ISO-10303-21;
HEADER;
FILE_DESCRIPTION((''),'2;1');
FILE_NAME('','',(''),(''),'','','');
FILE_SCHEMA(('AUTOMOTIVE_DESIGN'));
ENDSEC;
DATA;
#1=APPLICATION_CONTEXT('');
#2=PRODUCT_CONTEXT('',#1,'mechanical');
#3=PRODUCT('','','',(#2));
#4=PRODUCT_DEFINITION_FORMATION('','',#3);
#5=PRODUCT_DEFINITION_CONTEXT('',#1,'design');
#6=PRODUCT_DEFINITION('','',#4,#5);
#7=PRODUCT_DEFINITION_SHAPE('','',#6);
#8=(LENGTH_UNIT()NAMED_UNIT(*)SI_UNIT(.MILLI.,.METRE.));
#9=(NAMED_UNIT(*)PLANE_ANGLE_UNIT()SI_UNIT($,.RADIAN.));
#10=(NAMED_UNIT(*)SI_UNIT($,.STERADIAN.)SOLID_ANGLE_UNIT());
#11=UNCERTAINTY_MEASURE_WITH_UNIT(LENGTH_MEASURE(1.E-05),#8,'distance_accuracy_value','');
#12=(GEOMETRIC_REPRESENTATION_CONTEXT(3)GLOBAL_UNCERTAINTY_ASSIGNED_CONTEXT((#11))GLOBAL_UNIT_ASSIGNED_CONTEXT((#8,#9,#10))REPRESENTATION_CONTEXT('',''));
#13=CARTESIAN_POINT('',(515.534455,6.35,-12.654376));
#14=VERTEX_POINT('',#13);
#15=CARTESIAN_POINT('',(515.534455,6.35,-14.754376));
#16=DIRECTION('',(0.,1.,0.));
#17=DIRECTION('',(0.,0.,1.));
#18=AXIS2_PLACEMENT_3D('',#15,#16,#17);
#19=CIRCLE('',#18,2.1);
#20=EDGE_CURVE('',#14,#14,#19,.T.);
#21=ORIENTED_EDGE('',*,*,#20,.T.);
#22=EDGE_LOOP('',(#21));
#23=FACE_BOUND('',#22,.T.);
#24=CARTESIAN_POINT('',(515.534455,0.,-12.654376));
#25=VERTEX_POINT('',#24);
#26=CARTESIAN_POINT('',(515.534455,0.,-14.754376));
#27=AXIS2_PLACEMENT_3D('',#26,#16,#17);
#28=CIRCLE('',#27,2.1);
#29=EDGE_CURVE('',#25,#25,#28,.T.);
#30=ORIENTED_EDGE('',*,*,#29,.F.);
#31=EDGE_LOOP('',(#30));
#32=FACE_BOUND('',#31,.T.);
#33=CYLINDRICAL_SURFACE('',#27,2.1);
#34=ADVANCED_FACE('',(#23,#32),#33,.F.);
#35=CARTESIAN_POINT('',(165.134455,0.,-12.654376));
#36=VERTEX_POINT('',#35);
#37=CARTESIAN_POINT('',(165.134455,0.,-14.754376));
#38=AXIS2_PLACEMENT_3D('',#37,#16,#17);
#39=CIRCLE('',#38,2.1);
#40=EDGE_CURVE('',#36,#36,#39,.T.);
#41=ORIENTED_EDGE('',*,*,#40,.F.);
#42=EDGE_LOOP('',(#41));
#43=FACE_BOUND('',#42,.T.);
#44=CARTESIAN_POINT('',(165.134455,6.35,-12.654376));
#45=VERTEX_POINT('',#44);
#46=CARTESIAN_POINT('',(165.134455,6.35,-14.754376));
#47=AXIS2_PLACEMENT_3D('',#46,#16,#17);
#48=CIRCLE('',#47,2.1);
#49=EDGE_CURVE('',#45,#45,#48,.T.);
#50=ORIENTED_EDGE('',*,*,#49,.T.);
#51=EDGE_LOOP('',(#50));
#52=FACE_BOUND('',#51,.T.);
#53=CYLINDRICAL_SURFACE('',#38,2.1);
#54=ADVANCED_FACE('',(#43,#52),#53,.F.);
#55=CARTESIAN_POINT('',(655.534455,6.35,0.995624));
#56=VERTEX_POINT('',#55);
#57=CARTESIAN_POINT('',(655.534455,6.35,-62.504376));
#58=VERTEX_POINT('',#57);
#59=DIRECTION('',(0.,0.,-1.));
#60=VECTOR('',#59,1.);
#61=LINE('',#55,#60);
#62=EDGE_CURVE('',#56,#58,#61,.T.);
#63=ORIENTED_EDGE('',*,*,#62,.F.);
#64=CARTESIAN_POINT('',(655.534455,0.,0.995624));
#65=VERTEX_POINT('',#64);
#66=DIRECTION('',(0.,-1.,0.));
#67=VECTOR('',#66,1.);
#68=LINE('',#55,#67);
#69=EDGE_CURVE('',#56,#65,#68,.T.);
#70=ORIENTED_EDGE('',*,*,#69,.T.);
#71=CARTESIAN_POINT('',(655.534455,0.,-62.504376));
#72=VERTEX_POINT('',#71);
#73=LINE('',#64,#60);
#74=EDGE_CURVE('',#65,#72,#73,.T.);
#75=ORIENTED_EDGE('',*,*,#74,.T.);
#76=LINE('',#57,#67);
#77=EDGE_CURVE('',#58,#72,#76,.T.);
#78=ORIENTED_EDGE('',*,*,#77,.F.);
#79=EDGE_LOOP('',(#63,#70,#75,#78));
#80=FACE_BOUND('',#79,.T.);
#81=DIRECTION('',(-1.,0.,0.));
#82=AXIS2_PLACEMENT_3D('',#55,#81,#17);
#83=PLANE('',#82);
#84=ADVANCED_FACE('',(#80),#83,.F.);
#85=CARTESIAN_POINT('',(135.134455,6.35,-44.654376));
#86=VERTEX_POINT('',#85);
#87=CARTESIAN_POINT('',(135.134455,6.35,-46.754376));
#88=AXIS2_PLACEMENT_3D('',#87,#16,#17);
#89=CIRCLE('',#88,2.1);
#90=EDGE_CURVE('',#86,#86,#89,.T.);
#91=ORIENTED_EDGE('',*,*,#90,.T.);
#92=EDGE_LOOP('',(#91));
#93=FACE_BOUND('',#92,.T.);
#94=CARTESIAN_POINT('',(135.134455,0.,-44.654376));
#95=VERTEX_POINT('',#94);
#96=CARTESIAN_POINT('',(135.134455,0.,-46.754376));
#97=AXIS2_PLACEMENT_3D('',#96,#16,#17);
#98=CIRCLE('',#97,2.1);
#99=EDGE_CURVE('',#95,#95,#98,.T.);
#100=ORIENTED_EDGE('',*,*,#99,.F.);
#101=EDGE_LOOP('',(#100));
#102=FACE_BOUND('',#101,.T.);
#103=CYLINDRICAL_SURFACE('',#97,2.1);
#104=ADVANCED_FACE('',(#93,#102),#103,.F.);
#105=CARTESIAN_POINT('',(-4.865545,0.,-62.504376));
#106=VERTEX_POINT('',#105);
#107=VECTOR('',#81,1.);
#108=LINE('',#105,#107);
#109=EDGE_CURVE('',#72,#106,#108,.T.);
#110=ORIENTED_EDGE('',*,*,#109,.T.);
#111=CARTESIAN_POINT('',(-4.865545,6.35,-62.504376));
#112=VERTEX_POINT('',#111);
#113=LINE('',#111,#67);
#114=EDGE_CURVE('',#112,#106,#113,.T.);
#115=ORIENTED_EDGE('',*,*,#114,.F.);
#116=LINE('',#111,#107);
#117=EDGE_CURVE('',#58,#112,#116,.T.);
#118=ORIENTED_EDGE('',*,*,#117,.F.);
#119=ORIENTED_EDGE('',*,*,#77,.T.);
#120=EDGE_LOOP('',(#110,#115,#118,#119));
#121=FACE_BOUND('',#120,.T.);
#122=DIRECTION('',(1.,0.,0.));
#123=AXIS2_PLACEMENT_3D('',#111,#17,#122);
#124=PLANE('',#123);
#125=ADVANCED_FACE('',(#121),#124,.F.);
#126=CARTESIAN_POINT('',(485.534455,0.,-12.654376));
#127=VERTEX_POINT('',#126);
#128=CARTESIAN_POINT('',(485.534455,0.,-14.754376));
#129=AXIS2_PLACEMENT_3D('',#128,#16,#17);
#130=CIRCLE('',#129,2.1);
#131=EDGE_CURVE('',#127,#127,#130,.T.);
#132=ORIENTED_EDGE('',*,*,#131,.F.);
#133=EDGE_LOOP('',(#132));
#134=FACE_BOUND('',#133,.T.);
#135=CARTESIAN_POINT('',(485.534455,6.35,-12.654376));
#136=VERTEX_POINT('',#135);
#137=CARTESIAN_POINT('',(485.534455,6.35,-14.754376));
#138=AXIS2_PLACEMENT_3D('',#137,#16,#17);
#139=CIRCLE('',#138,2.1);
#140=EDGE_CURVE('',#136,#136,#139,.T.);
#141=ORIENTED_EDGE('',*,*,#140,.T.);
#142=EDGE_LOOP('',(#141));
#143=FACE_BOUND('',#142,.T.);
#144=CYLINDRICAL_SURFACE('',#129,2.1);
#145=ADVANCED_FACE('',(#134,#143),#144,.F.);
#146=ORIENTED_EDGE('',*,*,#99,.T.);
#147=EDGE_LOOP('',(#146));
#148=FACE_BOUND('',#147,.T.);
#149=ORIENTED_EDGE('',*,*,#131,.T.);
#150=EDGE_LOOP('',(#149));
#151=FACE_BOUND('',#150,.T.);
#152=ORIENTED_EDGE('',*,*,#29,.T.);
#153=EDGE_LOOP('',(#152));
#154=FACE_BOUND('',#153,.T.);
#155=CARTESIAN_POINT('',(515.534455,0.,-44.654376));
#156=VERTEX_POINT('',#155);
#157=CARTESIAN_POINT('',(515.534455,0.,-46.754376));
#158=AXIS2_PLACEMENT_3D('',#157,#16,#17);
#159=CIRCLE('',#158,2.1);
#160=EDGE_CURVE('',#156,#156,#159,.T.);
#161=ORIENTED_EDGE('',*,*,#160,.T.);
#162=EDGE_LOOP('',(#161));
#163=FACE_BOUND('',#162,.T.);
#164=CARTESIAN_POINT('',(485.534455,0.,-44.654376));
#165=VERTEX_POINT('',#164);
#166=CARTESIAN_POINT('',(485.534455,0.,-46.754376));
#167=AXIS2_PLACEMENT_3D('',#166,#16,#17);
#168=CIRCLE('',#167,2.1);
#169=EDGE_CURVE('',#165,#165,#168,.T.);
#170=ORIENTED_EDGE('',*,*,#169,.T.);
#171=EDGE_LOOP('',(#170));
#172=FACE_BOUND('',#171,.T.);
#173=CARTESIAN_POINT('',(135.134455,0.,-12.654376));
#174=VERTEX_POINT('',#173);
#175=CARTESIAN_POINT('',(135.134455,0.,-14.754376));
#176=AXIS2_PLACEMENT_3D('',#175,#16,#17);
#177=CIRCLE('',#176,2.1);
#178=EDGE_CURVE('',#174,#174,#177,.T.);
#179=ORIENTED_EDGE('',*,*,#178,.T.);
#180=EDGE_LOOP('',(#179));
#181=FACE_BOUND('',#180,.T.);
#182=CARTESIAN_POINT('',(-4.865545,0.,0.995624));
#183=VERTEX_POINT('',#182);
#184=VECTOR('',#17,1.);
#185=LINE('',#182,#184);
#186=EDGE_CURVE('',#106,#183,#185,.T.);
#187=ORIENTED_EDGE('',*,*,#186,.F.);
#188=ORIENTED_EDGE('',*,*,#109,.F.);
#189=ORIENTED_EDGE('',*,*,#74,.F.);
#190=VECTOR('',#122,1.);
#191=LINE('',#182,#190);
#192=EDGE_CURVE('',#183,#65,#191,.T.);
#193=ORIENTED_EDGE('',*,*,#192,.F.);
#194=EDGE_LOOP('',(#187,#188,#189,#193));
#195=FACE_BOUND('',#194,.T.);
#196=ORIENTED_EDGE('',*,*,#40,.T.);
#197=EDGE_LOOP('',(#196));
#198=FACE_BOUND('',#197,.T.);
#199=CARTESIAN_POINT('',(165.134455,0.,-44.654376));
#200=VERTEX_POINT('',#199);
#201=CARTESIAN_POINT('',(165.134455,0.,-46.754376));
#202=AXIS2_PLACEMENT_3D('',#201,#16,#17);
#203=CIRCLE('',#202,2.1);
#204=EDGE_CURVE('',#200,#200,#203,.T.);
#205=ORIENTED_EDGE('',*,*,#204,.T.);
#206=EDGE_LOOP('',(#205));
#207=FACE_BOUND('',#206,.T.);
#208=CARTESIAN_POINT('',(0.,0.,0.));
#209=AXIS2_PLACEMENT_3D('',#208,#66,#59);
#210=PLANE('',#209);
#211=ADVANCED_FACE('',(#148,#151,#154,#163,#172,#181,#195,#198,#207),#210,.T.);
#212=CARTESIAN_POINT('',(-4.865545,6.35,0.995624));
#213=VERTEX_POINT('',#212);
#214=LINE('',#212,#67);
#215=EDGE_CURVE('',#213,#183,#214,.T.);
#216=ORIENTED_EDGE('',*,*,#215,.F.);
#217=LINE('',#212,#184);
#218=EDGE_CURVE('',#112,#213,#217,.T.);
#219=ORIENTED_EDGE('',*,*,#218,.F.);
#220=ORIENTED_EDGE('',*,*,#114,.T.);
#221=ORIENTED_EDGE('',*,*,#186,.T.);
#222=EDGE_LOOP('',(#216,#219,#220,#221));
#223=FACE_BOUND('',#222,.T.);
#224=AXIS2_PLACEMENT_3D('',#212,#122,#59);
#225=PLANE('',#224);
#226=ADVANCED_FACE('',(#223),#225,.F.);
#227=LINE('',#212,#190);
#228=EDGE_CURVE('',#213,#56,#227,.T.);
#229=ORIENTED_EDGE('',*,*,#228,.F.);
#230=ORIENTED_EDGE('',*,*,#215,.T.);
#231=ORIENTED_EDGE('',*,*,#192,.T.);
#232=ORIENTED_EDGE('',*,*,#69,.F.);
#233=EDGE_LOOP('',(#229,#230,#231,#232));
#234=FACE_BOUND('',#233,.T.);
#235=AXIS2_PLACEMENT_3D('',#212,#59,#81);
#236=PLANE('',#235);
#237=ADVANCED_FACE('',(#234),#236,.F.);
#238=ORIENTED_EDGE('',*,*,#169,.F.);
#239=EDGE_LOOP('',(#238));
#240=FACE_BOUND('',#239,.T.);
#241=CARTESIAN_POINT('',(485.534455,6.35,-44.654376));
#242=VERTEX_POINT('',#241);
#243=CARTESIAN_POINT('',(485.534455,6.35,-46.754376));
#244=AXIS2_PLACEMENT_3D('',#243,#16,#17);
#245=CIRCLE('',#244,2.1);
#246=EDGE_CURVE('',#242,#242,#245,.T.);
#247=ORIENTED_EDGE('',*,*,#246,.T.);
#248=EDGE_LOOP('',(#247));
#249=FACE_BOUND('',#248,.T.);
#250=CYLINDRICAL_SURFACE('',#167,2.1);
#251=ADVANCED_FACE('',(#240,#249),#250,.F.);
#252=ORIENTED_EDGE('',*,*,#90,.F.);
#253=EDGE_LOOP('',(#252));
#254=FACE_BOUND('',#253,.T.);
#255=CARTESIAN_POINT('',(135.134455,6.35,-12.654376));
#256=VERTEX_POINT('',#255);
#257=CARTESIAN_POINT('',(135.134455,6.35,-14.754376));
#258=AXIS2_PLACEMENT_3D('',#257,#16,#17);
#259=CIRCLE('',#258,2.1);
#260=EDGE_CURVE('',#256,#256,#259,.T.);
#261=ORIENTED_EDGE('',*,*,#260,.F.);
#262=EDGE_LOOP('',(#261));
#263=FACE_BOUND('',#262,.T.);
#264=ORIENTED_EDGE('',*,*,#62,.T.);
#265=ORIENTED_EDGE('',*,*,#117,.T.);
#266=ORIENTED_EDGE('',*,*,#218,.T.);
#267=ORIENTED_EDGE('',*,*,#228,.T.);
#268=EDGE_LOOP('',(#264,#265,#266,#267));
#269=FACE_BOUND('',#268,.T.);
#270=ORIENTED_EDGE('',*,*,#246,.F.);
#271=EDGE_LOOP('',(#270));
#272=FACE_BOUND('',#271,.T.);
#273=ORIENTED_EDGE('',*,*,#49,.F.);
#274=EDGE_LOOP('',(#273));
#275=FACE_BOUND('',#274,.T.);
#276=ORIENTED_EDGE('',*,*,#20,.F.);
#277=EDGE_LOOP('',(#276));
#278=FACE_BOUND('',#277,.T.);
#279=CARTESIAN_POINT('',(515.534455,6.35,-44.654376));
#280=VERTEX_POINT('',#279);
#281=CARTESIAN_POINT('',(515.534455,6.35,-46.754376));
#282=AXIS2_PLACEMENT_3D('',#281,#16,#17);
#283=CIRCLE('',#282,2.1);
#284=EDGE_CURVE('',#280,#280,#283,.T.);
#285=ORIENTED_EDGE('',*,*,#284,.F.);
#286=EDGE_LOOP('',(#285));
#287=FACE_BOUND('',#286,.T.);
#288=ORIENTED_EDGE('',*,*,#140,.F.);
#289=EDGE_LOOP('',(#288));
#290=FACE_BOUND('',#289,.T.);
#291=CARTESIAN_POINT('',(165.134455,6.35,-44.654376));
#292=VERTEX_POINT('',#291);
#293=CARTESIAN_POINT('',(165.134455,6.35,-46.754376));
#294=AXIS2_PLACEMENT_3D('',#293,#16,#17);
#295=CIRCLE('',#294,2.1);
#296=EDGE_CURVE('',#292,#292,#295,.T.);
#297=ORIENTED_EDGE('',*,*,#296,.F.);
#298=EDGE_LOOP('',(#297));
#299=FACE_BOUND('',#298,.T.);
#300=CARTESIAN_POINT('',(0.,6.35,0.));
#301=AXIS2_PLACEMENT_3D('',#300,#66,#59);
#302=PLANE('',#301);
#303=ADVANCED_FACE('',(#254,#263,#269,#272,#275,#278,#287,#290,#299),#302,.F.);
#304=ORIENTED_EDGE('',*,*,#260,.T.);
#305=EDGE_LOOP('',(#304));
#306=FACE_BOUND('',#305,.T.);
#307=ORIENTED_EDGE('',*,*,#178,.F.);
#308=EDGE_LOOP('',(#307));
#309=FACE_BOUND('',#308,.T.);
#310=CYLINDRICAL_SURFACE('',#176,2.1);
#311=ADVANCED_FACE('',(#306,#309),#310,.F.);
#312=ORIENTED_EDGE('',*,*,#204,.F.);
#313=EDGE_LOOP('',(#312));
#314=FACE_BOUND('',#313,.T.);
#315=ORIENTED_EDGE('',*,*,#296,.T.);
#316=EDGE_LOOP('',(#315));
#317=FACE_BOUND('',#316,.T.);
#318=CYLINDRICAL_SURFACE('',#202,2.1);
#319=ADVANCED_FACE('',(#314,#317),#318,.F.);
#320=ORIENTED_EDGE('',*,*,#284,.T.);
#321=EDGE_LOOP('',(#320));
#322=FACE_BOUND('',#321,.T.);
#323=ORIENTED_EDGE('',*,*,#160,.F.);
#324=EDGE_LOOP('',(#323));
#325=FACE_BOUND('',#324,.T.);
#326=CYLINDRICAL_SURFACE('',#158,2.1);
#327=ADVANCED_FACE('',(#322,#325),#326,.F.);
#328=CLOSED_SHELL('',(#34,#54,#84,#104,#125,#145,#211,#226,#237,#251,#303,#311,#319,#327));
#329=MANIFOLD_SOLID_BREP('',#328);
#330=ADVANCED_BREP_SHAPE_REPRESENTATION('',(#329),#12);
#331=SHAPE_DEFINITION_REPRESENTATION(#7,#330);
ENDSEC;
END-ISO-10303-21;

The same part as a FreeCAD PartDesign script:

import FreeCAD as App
import Part
import Sketcher
from FreeCAD import Vector
Q = App.Units.Quantity

doc = App.newDocument("Part")
body = doc.addObject("PartDesign::Body", "Body")

# Sketch on XZ plane
sketch1 = body.newObject("Sketcher::SketchObject", "Sketch")
sketch1.AttachmentSupport = (doc.getObject("XZ_Plane"), [""])
sketch1.MapMode = "FlatFace"
sketch1.addGeometry([
    Part.LineSegment(Vector(-5, -63, 0), Vector(-5, 1, 0)),
    Part.LineSegment(Vector(-5, 1, 0), Vector(656, 1, 0)),
    Part.LineSegment(Vector(656, 1, 0), Vector(656, -63, 0)),
    Part.LineSegment(Vector(656, -63, 0), Vector(-5, -63, 0)),
], False)
sketch1.addConstraint([
    Sketcher.Constraint("Coincident", 0, 2, 1, 1),
    Sketcher.Constraint("Coincident", 1, 2, 2, 1),
    Sketcher.Constraint("Coincident", 2, 2, 3, 1),
    Sketcher.Constraint("Coincident", 3, 2, 0, 1),
    Sketcher.Constraint("Vertical", 0),
    Sketcher.Constraint("Horizontal", 1),
    Sketcher.Constraint("Vertical", 2),
    Sketcher.Constraint("Horizontal", 3),
    Sketcher.Constraint("DistanceX", 1, 1, 1, 2, Q("26 in")),
    Sketcher.Constraint("DistanceY", 0, 1, 0, 2, Q("2.5 in")),
    Sketcher.Constraint("DistanceX", 0, 2, -1, 1, Q("4.865545 mm")),
    Sketcher.Constraint("DistanceY", -1, 1, 0, 2, Q("0.995624 mm")),
])
pad1 = body.newObject("PartDesign::Pad", "Pad")
pad1.Profile = sketch1
pad1.Length = Q("0.25 in")
pad1.Reversed = True

# Sketch on XZ plane
sketch2 = body.newObject("Sketcher::SketchObject", "Sketch001")
sketch2.AttachmentSupport = (doc.getObject("XZ_Plane"), [""])
sketch2.MapMode = "FlatFace"
sketch2.AttachmentOffset = App.Placement(Vector(0, 0, -0.25 * 25.4), App.Rotation())
sketch2.addGeometry([
    Part.Circle(Vector(515.5, -46.8, 0), Vector(0, 0, 1), 2.1),  # 0
    Part.Circle(Vector(515.5, -14.8, 0), Vector(0, 0, 1), 2.1),  # 1
    Part.Circle(Vector(485.5, -46.8, 0), Vector(0, 0, 1), 2.1),  # 2
    Part.Circle(Vector(485.5, -14.8, 0), Vector(0, 0, 1), 2.1),  # 3
    Part.Circle(Vector(165.1, -46.8, 0), Vector(0, 0, 1), 2.1),  # 4
    Part.Circle(Vector(165.1, -14.8, 0), Vector(0, 0, 1), 2.1),  # 5
    Part.Circle(Vector(135.1, -46.8, 0), Vector(0, 0, 1), 2.1),  # 6
    Part.Circle(Vector(135.1, -14.8, 0), Vector(0, 0, 1), 2.1),  # 7
], False)
sketch2.addConstraint([
    Sketcher.Constraint("Equal", 0, 1),
    Sketcher.Constraint("Equal", 1, 2),
    Sketcher.Constraint("Equal", 2, 3),
    Sketcher.Constraint("Equal", 3, 4),
    Sketcher.Constraint("Equal", 4, 5),
    Sketcher.Constraint("Equal", 5, 6),
    Sketcher.Constraint("Equal", 6, 7),
    Sketcher.Constraint("Horizontal", 0, 3, 2, 3),
    Sketcher.Constraint("Horizontal", 1, 3, 3, 3),
    Sketcher.Constraint("Horizontal", 2, 3, 4, 3),
    Sketcher.Constraint("Horizontal", 3, 3, 5, 3),
    Sketcher.Constraint("Horizontal", 4, 3, 6, 3),
    Sketcher.Constraint("Horizontal", 5, 3, 7, 3),
    Sketcher.Constraint("Vertical", 0, 3, 1, 3),
    Sketcher.Constraint("Vertical", 2, 3, 3, 3),
    Sketcher.Constraint("Vertical", 4, 3, 5, 3),
    Sketcher.Constraint("Vertical", 6, 3, 7, 3),
    Sketcher.Constraint("Diameter", 0, Q("4.2 mm")),
    Sketcher.Constraint("DistanceY", 0, 3, 1, 3, Q("32 mm")),
    Sketcher.Constraint("DistanceX", 2, 3, 0, 3, Q("30 mm")),
    Sketcher.Constraint("DistanceX", 4, 3, 2, 3, Q("320.4 mm")),
    Sketcher.Constraint("DistanceX", 6, 3, 4, 3, Q("30 mm")),
    Sketcher.Constraint("DistanceX", -1, 1, 0, 3, Q("515.534455 mm")),
    Sketcher.Constraint("DistanceY", 0, 3, -1, 1, Q("46.754376 mm")),
])
pocket1 = body.newObject("PartDesign::Pocket", "Pocket")
pocket1.Profile = sketch2
pocket1.Type = "ThroughAll"
pocket1.Reversed = True

doc.recompute()
